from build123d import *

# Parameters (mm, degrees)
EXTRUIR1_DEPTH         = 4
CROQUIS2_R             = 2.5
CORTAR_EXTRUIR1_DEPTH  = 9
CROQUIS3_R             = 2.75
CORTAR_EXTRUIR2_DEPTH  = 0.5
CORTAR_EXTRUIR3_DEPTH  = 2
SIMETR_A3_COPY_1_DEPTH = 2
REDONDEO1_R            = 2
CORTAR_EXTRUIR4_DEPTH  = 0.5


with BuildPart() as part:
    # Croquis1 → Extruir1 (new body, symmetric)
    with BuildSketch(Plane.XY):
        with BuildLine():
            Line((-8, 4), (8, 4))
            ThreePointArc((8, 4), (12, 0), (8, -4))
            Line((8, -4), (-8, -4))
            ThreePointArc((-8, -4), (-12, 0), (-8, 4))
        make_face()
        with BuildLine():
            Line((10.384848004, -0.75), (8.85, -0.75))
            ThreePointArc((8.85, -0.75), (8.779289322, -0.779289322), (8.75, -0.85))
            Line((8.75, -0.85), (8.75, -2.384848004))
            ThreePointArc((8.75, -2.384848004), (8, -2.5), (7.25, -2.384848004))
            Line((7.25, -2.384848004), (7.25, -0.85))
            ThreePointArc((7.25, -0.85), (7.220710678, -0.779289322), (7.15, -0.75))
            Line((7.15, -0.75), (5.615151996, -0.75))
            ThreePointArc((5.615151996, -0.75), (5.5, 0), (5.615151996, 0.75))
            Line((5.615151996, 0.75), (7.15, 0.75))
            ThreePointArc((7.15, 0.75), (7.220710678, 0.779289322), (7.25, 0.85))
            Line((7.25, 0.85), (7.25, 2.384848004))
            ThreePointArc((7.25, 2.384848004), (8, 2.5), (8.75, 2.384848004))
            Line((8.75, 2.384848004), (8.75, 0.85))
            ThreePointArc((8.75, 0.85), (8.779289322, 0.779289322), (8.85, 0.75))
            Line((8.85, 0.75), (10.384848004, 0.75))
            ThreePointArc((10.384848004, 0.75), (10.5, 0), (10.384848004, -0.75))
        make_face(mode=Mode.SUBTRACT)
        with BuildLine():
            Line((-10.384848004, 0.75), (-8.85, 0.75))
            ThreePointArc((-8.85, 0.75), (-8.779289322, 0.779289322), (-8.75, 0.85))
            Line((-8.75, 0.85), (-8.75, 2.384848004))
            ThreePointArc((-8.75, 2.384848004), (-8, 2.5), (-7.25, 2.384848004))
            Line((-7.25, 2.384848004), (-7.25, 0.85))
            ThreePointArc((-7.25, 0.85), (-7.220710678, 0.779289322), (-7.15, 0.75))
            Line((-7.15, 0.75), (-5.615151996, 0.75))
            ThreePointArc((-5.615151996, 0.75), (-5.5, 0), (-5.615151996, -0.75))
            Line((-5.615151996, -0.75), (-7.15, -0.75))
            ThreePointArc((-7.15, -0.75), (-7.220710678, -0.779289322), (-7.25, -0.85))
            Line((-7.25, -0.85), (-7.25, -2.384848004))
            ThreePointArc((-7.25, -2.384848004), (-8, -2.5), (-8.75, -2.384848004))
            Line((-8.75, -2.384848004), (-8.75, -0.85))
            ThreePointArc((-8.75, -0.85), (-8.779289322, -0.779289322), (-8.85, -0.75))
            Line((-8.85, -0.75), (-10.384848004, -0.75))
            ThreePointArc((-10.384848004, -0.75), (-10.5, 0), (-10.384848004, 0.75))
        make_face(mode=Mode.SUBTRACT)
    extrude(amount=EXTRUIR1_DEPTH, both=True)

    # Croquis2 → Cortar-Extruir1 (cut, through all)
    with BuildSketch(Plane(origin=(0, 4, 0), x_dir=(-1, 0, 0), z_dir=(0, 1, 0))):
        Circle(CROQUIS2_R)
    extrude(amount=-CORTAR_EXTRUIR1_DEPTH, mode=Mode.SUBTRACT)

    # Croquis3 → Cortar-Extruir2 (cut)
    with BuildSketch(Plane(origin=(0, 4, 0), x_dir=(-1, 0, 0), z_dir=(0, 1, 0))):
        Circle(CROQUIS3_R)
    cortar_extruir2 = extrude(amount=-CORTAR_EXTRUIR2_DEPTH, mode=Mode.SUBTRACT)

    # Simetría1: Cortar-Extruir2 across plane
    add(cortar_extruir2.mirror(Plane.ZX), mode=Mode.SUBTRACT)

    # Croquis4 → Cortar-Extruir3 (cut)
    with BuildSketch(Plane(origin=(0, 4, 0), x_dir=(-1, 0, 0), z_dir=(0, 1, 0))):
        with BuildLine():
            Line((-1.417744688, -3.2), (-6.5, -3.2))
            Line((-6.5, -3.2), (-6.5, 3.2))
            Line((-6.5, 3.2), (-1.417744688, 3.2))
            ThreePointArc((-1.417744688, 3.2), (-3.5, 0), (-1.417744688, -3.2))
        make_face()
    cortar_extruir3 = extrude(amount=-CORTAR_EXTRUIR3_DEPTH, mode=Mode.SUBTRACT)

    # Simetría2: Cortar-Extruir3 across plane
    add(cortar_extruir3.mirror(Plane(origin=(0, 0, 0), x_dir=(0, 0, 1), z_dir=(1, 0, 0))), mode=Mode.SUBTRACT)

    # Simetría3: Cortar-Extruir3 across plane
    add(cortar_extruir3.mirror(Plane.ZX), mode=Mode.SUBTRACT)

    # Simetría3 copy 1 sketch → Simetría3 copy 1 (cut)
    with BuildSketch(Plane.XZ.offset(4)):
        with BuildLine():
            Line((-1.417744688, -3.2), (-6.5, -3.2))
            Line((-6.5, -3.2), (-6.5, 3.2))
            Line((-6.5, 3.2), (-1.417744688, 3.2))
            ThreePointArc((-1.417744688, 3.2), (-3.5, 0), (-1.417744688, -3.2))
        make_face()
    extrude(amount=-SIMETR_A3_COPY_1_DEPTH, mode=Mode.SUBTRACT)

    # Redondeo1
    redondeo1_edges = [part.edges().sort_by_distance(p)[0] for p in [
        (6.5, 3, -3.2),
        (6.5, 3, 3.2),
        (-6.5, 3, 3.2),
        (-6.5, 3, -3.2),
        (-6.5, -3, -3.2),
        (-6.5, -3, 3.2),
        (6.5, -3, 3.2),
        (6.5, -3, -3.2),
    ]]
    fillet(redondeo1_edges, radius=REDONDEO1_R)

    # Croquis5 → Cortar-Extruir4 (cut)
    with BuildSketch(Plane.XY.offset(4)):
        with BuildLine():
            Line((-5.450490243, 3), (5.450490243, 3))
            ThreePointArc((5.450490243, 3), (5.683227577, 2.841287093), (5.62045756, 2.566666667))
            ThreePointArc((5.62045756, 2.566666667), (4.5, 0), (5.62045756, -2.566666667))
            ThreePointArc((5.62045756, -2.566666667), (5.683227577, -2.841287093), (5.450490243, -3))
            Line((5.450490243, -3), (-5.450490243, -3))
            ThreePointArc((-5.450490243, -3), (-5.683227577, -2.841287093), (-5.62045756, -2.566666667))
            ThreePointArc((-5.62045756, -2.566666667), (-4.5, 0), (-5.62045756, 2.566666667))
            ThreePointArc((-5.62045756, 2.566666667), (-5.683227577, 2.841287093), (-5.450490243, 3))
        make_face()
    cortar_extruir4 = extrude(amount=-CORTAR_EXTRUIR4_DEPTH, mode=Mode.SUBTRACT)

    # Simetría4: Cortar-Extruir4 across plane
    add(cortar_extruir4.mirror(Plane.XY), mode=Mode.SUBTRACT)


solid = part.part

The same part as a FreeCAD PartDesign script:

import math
import FreeCAD as App
import Part
import Sketcher


def edges_at(feature, points):
    """Names of the edges that pass closest to the given points."""
    edges = feature.Shape.Edges
    near = lambda p: min(range(len(edges)), key=lambda i: edges[i].distToShape(Part.Vertex(*p))[0])
    return sorted({f"Edge{near(p) + 1}" for p in points})

doc = App.newDocument("Part")
body = doc.addObject("PartDesign::Body", "Body")

sketch1 = body.newObject("Sketcher::SketchObject", "Sketch")
sketch1.AttachmentSupport = (doc.getObject("XY_Plane"), [""])
sketch1.MapMode = "FlatFace"
sketch1.addGeometry([
    Part.LineSegment(App.Vector(8, 4, 0), App.Vector(-8, 4, 0)),
    Part.ArcOfCircle(Part.Circle(App.Vector(-8, 0, 0), App.Vector(0, 0, 1), 4), math.radians(90), math.radians(270)),
    Part.LineSegment(App.Vector(-8, -4, 0), App.Vector(8, -4, 0)),
    Part.ArcOfCircle(Part.Circle(App.Vector(8, 0, 0), App.Vector(0, 0, 1), 4), math.radians(-90), math.radians(90)),
    Part.LineSegment(App.Vector(10.38, -0.75, 0), App.Vector(8.85, -0.75, 0)),
    Part.ArcOfCircle(Part.Circle(App.Vector(8.85, -0.85, 0), App.Vector(0, 0, 1), 0.1), math.radians(90), math.radians(180)),
    Part.LineSegment(App.Vector(8.75, -0.85, 0), App.Vector(8.75, -2.38, 0)),
    Part.ArcOfCircle(Part.Circle(App.Vector(8, 0, 0), App.Vector(0, 0, 1), 2.5), math.radians(-107), math.radians(-73)),
    Part.LineSegment(App.Vector(7.25, -2.38, 0), App.Vector(7.25, -0.85, 0)),
    Part.ArcOfCircle(Part.Circle(App.Vector(7.15, -0.85, 0), App.Vector(0, 0, 1), 0.1), math.radians(0), math.radians(90)),
    Part.LineSegment(App.Vector(7.15, -0.75, 0), App.Vector(5.62, -0.75, 0)),
    Part.ArcOfCircle(Part.Circle(App.Vector(8, 0, 0), App.Vector(0, 0, 1), 2.5), math.radians(163), math.radians(197)),
    Part.LineSegment(App.Vector(5.62, 0.75, 0), App.Vector(7.15, 0.75, 0)),
    Part.ArcOfCircle(Part.Circle(App.Vector(7.15, 0.85, 0), App.Vector(0, 0, 1), 0.1), math.radians(-90), math.radians(0)),
    Part.LineSegment(App.Vector(7.25, 0.85, 0), App.Vector(7.25, 2.38, 0)),
    Part.ArcOfCircle(Part.Circle(App.Vector(8, 0, 0), App.Vector(0, 0, 1), 2.5), math.radians(73), math.radians(107)),
    Part.LineSegment(App.Vector(8.75, 2.38, 0), App.Vector(8.75, 0.85, 0)),
    Part.ArcOfCircle(Part.Circle(App.Vector(8.85, 0.85, 0), App.Vector(0, 0, 1), 0.1), math.radians(180), math.radians(270)),
    Part.LineSegment(App.Vector(8.85, 0.75, 0), App.Vector(10.38, 0.75, 0)),
    Part.ArcOfCircle(Part.Circle(App.Vector(8, 0, 0), App.Vector(0, 0, 1), 2.5), math.radians(-17), math.radians(17)),
    Part.LineSegment(App.Vector(-10.38, 0.75, 0), App.Vector(-8.85, 0.75, 0)),
    Part.ArcOfCircle(Part.Circle(App.Vector(-8.85, 0.85, 0), App.Vector(0, 0, 1), 0.1), math.radians(-90), math.radians(0)),
    Part.LineSegment(App.Vector(-8.75, 0.85, 0), App.Vector(-8.75, 2.38, 0)),
    Part.ArcOfCircle(Part.Circle(App.Vector(-8, 0, 0), App.Vector(0, 0, 1), 2.5), math.radians(73), math.radians(107)),
    Part.LineSegment(App.Vector(-7.25, 2.38, 0), App.Vector(-7.25, 0.85, 0)),
    Part.ArcOfCircle(Part.Circle(App.Vector(-7.15, 0.85, 0), App.Vector(0, 0, 1), 0.1), math.radians(180), math.radians(270)),
    Part.LineSegment(App.Vector(-7.15, 0.75, 0), App.Vector(-5.62, 0.75, 0)),
    Part.ArcOfCircle(Part.Circle(App.Vector(-8, 0, 0), App.Vector(0, 0, 1), 2.5), math.radians(-17), math.radians(17)),
    Part.LineSegment(App.Vector(-5.62, -0.75, 0), App.Vector(-7.15, -0.75, 0)),
    Part.ArcOfCircle(Part.Circle(App.Vector(-7.15, -0.85, 0), App.Vector(0, 0, 1), 0.1), math.radians(90), math.radians(180)),
    Part.LineSegment(App.Vector(-7.25, -0.85, 0), App.Vector(-7.25, -2.38, 0)),
    Part.ArcOfCircle(Part.Circle(App.Vector(-8, 0, 0), App.Vector(0, 0, 1), 2.5), math.radians(-107), math.radians(-73)),
    Part.LineSegment(App.Vector(-8.75, -2.38, 0), App.Vector(-8.75, -0.85, 0)),
    Part.ArcOfCircle(Part.Circle(App.Vector(-8.85, -0.85, 0), App.Vector(0, 0, 1), 0.1), math.radians(0), math.radians(90)),
    Part.LineSegment(App.Vector(-8.85, -0.75, 0), App.Vector(-10.38, -0.75, 0)),
    Part.ArcOfCircle(Part.Circle(App.Vector(-8, 0, 0), App.Vector(0, 0, 1), 2.5), math.radians(163), math.radians(197)),
], False)
sketch1.addConstraint([
    Sketcher.Constraint("Tangent", 0, 2, 1, 1),
    Sketcher.Constraint("Tangent", 1, 2, 2, 1),
    Sketcher.Constraint("Tangent", 2, 2, 3, 1),
    Sketcher.Constraint("Tangent", 3, 2, 0, 1),
    Sketcher.Constraint("Tangent", 4, 2, 5, 1),
    Sketcher.Constraint("Tangent", 5, 2, 6, 1),
    Sketcher.Constraint("Coincident", 6, 2, 7, 2),
    Sketcher.Constraint("Coincident", 7, 1, 8, 1),
    Sketcher.Constraint("Tangent", 8, 2, 9, 1),
    Sketcher.Constraint("Tangent", 9, 2, 10, 1),
    Sketcher.Constraint("Coincident", 10, 2, 11, 2),
    Sketcher.Constraint("Coincident", 11, 1, 12, 1),
    Sketcher.Constraint("Tangent", 12, 2, 13, 1),
    Sketcher.Constraint("Tangent", 13, 2, 14, 1),
    Sketcher.Constraint("Coincident", 14, 2, 15, 2),
    Sketcher.Constraint("Coincident", 15, 1, 16, 1),
    Sketcher.Constraint("Tangent", 16, 2, 17, 1),
    Sketcher.Constraint("Tangent", 17, 2, 18, 1),
    Sketcher.Constraint("Coincident", 18, 2, 19, 2),
    Sketcher.Constraint("Coincident", 19, 1, 4, 1),
    Sketcher.Constraint("Tangent", 20, 2, 21, 1),
    Sketcher.Constraint("Tangent", 21, 2, 22, 1),
    Sketcher.Constraint("Coincident", 22, 2, 23, 2),
    Sketcher.Constraint("Coincident", 23, 1, 24, 1),
    Sketcher.Constraint("Tangent", 24, 2, 25, 1),
    Sketcher.Constraint("Tangent", 25, 2, 26, 1),
    Sketcher.Constraint("Coincident", 26, 2, 27, 2),
    Sketcher.Constraint("Coincident", 27, 1, 28, 1),
    Sketcher.Constraint("Tangent", 28, 2, 29, 1),
    Sketcher.Constraint("Tangent", 29, 2, 30, 1),
    Sketcher.Constraint("Coincident", 30, 2, 31, 2),
    Sketcher.Constraint("Coincident", 31, 1, 32, 1),
    Sketcher.Constraint("Tangent", 32, 2, 33, 1),
    Sketcher.Constraint("Tangent", 33, 2, 34, 1),
    Sketcher.Constraint("Coincident", 34, 2, 35, 2),
    Sketcher.Constraint("Coincident", 35, 1, 20, 1),
    Sketcher.Constraint("Horizontal", 0),
    Sketcher.Constraint("Horizontal", 2),
    Sketcher.Constraint("Horizontal", 4),
    Sketcher.Constraint("Vertical", 6),
    Sketcher.Constraint("Vertical", 8),
    Sketcher.Constraint("Horizontal", 10),
    Sketcher.Constraint("Horizontal", 12),
    Sketcher.Constraint("Vertical", 14),
    Sketcher.Constraint("Vertical", 16),
    Sketcher.Constraint("Horizontal", 18),
    Sketcher.Constraint("Horizontal", 20),
    Sketcher.Constraint("Vertical", 22),
    Sketcher.Constraint("Vertical", 24),
    Sketcher.Constraint("Horizontal", 26),
    Sketcher.Constraint("Horizontal", 28),
    Sketcher.Constraint("Vertical", 30),
    Sketcher.Constraint("Vertical", 32),
    Sketcher.Constraint("Horizontal", 34),
    Sketcher.Constraint("Coincident", 7, 3, 3, 3),
    Sketcher.Constraint("Coincident", 11, 3, 3, 3),
    Sketcher.Constraint("Coincident", 15, 3, 3, 3),
    Sketcher.Constraint("Coincident", 19, 3, 3, 3),
    Sketcher.Constraint("Coincident", 23, 3, 1, 3),
    Sketcher.Constraint("Coincident", 27, 3, 1, 3),
    Sketcher.Constraint("Coincident", 31, 3, 1, 3),
    Sketcher.Constraint("Coincident", 35, 3, 1, 3),
    Sketcher.Constraint("Equal", 5, 9),
    Sketcher.Constraint("Equal", 7, 11),
    Sketcher.Constraint("Equal", 9, 13),
    Sketcher.Constraint("Equal", 11, 15),
    Sketcher.Constraint("Equal", 13, 17),
    Sketcher.Constraint("Equal", 15, 19),
    Sketcher.Constraint("Equal", 17, 21),
    Sketcher.Constraint("Equal", 19, 23),
    Sketcher.Constraint("Equal", 21, 25),
    Sketcher.Constraint("Equal", 23, 27),
    Sketcher.Constraint("Equal", 25, 29),
    Sketcher.Constraint("Equal", 27, 31),
    Sketcher.Constraint("Equal", 29, 33),
    Sketcher.Constraint("Equal", 31, 35),
    Sketcher.Constraint("Symmetric", 1, 3, 3, 3, -1, 1),
    Sketcher.Constraint("Symmetric", 5, 3, 21, 3, -1, 1),
    Sketcher.Constraint("Symmetric", 9, 3, 25, 3, -1, 1),
    Sketcher.Constraint("Symmetric", 13, 3, 29, 3, -1, 1),
    Sketcher.Constraint("Symmetric", 17, 3, 33, 3, -1, 1),
    Sketcher.Constraint("Symmetric", 17, 3, 21, 3, -2),
    Sketcher.Constraint("Symmetric", 13, 3, 25, 3, -2),
    Sketcher.Constraint("Horizontal", 5, 3, 9, 3),
    Sketcher.Constraint("Horizontal", 6, 2, 7, 1),
    Sketcher.Constraint("Equal", 34, 6),
    Sketcher.Constraint("Radius", 1, 4.0),
    Sketcher.Constraint("Radius", 5, 0.1),
    Sketcher.Constraint("Radius", 7, 2.5),
    Sketcher.Constraint("DistanceX", 0, 2, 0, 1, 16.0),
    Sketcher.Constraint("DistanceX", 9, 3, 5, 3, 1.7),
])
pad1 = body.newObject("PartDesign::Pad", "Pad")
pad1.Profile = sketch1
pad1.Length = 8
pad1.Midplane = True

sketch2 = body.newObject("Sketcher::SketchObject", "Sketch001")
sketch2.AttachmentSupport = (doc.getObject("XZ_Plane"), [""])
sketch2.MapMode = "FlatFace"
sketch2.AttachmentOffset = App.Placement(App.Vector(0, 0, -4), App.Rotation())
sketch2.addGeometry(Part.Circle(App.Vector(0, 0, 0), App.Vector(0, 0, 1), 2.5), False)
sketch2.addConstraint([
    Sketcher.Constraint("Coincident", 0, 3, -1, 1),
    Sketcher.Constraint("Diameter", 0, 5.0),
])
pocket1 = body.newObject("PartDesign::Pocket", "Pocket")
pocket1.Profile = sketch2
pocket1.Type = "ThroughAll"
pocket1.Reversed = True

sketch3 = body.newObject("Sketcher::SketchObject", "Sketch002")
sketch3.AttachmentSupport = (doc.getObject("XZ_Plane"), [""])
sketch3.MapMode = "FlatFace"
sketch3.AttachmentOffset = App.Placement(App.Vector(0, 0, -4), App.Rotation())
sketch3.addGeometry(Part.Circle(App.Vector(0, 0, 0), App.Vector(0, 0, 1), 2.8), False)
sketch3.addConstraint([
    Sketcher.Constraint("Coincident", 0, 3, -1, 1),
    Sketcher.Constraint("Diameter", 0, 5.5),
])
pocket2 = body.newObject("PartDesign::Pocket", "Pocket001")
pocket2.Profile = sketch3
pocket2.Length = 0.5
pocket2.Reversed = True
doc.recompute()

mirrored = body.newObject("PartDesign::Mirrored", "Mirrored")
mirrored.Originals = [pocket2]
mirrored.MirrorPlane = (doc.getObject("XZ_Plane"), [""])
body.Tip = mirrored

sketch4 = body.newObject("Sketcher::SketchObject", "Sketch003")
sketch4.AttachmentSupport = (doc.getObject("XZ_Plane"), [""])
sketch4.MapMode = "FlatFace"
sketch4.AttachmentOffset = App.Placement(App.Vector(0, 0, -4), App.Rotation())
sketch4.addGeometry([
    Part.LineSegment(App.Vector(6.5, -3.2, 0), App.Vector(1.4, -3.2, 0)),
    Part.ArcOfCircle(Part.Circle(App.Vector(0, 0, 0), App.Vector(0, 0, 1), 3.5), math.radians(-66), math.radians(66)),
    Part.LineSegment(App.Vector(1.4, 3.2, 0), App.Vector(6.5, 3.2, 0)),
    Part.LineSegment(App.Vector(6.5, 3.2, 0), App.Vector(6.5, -3.2, 0)),
], False)
sketch4.addConstraint([
    Sketcher.Constraint("Coincident", 0, 2, 1, 1),
    Sketcher.Constraint("Coincident", 1, 2, 2, 1),
    Sketcher.Constraint("Coincident", 2, 2, 3, 1),
    Sketcher.Constraint("Coincident", 3, 2, 0, 1),
    Sketcher.Constraint("Horizontal", 0),
    Sketcher.Constraint("Horizontal", 2),
    Sketcher.Constraint("Vertical", 3),
    Sketcher.Constraint("Coincident", 1, 3, -1, 1),
    Sketcher.Constraint("Vertical", 0, 2, 1, 2),
    Sketcher.Constraint("Radius", 1, 3.5),
    Sketcher.Constraint("DistanceY", 3, 2, 3, 1, 6.4),
    Sketcher.Constraint("DistanceX", -1, 1, 2, 2, 6.5),
])
pocket3 = body.newObject("PartDesign::Pocket", "Pocket002")
pocket3.Profile = sketch4
pocket3.Length = 2
pocket3.Reversed = True
doc.recompute()

mirrored2 = body.newObject("PartDesign::Mirrored", "Mirrored001")
mirrored2.Originals = [pocket3]
mirrored2.MirrorPlane = (doc.getObject("YZ_Plane"), [""])
body.Tip = mirrored2
doc.recompute()

mirrored3 = body.newObject("PartDesign::Mirrored", "Mirrored002")
mirrored3.Originals = [pocket3]
mirrored3.MirrorPlane = (doc.getObject("XZ_Plane"), [""])
body.Tip = mirrored3

sketch5 = body.newObject("Sketcher::SketchObject", "Sketch004")
sketch5.AttachmentSupport = (doc.getObject("XZ_Plane"), [""])
sketch5.MapMode = "FlatFace"
sketch5.AttachmentOffset = App.Placement(App.Vector(0, 0, 4), App.Rotation())
sketch5.addGeometry([
    Part.LineSegment(App.Vector(-6.5, -3.2, 0), App.Vector(-1.4, -3.2, 0)),
    Part.ArcOfCircle(Part.Circle(App.Vector(0, 0, 0), App.Vector(0, 0, 1), 3.5), math.radians(114), math.radians(246)),
    Part.LineSegment(App.Vector(-1.4, 3.2, 0), App.Vector(-6.5, 3.2, 0)),
    Part.LineSegment(App.Vector(-6.5, 3.2, 0), App.Vector(-6.5, -3.2, 0)),
], False)
sketch5.addConstraint([
    Sketcher.Constraint("Coincident", 0, 2, 1, 2),
    Sketcher.Constraint("Coincident", 1, 1, 2, 1),
    Sketcher.Constraint("Coincident", 2, 2, 3, 1),
    Sketcher.Constraint("Coincident", 3, 2, 0, 1),
    Sketcher.Constraint("Horizontal", 0),
    Sketcher.Constraint("Horizontal", 2),
    Sketcher.Constraint("Vertical", 3),
    Sketcher.Constraint("Coincident", 1, 3, -1, 1),
    Sketcher.Constraint("Vertical", 0, 2, 1, 1),
    Sketcher.Constraint("Radius", 1, 3.5),
    Sketcher.Constraint("DistanceY", 3, 2, 3, 1, 6.4),
    Sketcher.Constraint("DistanceX", 2, 2, -1, 1, 6.5),
])
pocket4 = body.newObject("PartDesign::Pocket", "Pocket003")
pocket4.Profile = sketch5
pocket4.Length = 2
doc.recompute()

fillet = body.newObject("PartDesign::Fillet", "Fillet")
fillet.Base = (pocket4, edges_at(pocket4, [
    (6.5, 3, -3.2),
    (6.5, 3, 3.2),
    (-6.5, 3, 3.2),
    (-6.5, 3, -3.2),
    (-6.5, -3, -3.2),
    (-6.5, -3, 3.2),
    (6.5, -3, 3.2),
    (6.5, -3, -3.2),
]))
fillet.Radius = 2

sketch6 = body.newObject("Sketcher::SketchObject", "Sketch005")
sketch6.AttachmentSupport = (doc.getObject("XY_Plane"), [""])
sketch6.MapMode = "FlatFace"
sketch6.AttachmentOffset = App.Placement(App.Vector(0, 0, 4), App.Rotation())
sketch6.addGeometry([
    Part.LineSegment(App.Vector(5.45, 3, 0), App.Vector(-5.45, 3, 0)),
    Part.ArcOfCircle(Part.Circle(App.Vector(-5.45, 2.75, 0), App.Vector(0, 0, 1), 0.25), math.radians(90), math.radians(227)),
    Part.ArcOfCircle(Part.Circle(App.Vector(-8, 0, 0), App.Vector(0, 0, 1), 3.5), math.radians(-47), math.radians(47)),
    Part.ArcOfCircle(Part.Circle(App.Vector(-5.45, -2.75, 0), App.Vector(0, 0, 1), 0.25), math.radians(133), math.radians(270)),
    Part.LineSegment(App.Vector(-5.45, -3, 0), App.Vector(5.45, -3, 0)),
    Part.ArcOfCircle(Part.Circle(App.Vector(5.45, -2.75, 0), App.Vector(0, 0, 1), 0.25), math.radians(-90), math.radians(47)),
    Part.ArcOfCircle(Part.Circle(App.Vector(8, 0, 0), App.Vector(0, 0, 1), 3.5), math.radians(133), math.radians(227)),
    Part.ArcOfCircle(Part.Circle(App.Vector(5.45, 2.75, 0), App.Vector(0, 0, 1), 0.25), math.radians(-47), math.radians(90)),
], False)
sketch6.addConstraint([
    Sketcher.Constraint("Tangent", 0, 2, 1, 1),
    Sketcher.Constraint("Tangent", 1, 2, 2, 2),
    Sketcher.Constraint("Tangent", 2, 1, 3, 1),
    Sketcher.Constraint("Tangent", 3, 2, 4, 1),
    Sketcher.Constraint("Tangent", 4, 2, 5, 1),
    Sketcher.Constraint("Tangent", 5, 2, 6, 2),
    Sketcher.Constraint("Tangent", 6, 1, 7, 1),
    Sketcher.Constraint("Tangent", 7, 2, 0, 1),
    Sketcher.Constraint("Horizontal", 0),
    Sketcher.Constraint("Horizontal", 4),
    Sketcher.Constraint("Equal", 1, 3),
    Sketcher.Constraint("Equal", 3, 5),
    Sketcher.Constraint("Equal", 2, 6),
    Sketcher.Constraint("Equal", 5, 7),
    Sketcher.Constraint("Symmetric", 1, 3, 5, 3, -1, 1),
    Sketcher.Constraint("Symmetric", 2, 3, 6, 3, -2),
    Sketcher.Constraint("Radius", 2, 3.5),
    Sketcher.Constraint("Radius", 1, 0.25),
    Sketcher.Constraint("DistanceX", 2, 3, -1, 1, 8.0),
    Sketcher.Constraint("DistanceY", -1, 1, 0, 2, 3.0),
])
pocket5 = body.newObject("PartDesign::Pocket", "Pocket004")
pocket5.Profile = sketch6
pocket5.Length = 0.5
doc.recompute()

mirrored4 = body.newObject("PartDesign::Mirrored", "Mirrored003")
mirrored4.Originals = [pocket5]
mirrored4.MirrorPlane = (doc.getObject("XY_Plane"), [""])
body.Tip = mirrored4

doc.recompute()
